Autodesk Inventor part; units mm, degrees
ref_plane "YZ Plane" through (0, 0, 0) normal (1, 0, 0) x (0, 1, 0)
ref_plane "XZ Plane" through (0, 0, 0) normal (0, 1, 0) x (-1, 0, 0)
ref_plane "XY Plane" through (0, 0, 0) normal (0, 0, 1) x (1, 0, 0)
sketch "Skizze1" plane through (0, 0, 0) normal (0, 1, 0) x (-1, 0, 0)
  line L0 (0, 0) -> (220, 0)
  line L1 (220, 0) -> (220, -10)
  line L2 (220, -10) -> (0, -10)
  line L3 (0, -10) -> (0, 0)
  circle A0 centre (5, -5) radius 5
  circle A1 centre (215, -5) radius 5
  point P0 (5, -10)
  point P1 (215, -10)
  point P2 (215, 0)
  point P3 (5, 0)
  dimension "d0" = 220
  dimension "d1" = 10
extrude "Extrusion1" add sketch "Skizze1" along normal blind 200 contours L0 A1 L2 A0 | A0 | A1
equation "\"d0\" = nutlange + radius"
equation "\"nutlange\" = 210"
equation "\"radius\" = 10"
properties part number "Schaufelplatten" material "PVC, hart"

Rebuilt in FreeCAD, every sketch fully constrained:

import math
import FreeCAD as App
import Part
import Sketcher

V = App.Vector
Q = App.Units.Quantity

doc = App.newDocument("Part")
body = doc.addObject("PartDesign::Body", "Body")

sketch1 = body.newObject("Sketcher::SketchObject", "Sketch")
sketch1.AttachmentSupport = (doc.getObject("XZ_Plane"), [""])
sketch1.MapMode = "FlatFace"
sketch1.addGeometry([
    Part.LineSegment(V(-215, 0, 0), V(-5, 0, 0)),
    Part.ArcOfCircle(Part.Circle(V(-5, -5, 0), V(0, 0, 1), 5), math.radians(-90), math.radians(90)),
    Part.LineSegment(V(-5, -10, 0), V(-215, -10, 0)),
    Part.ArcOfCircle(Part.Circle(V(-215, -5, 0), V(0, 0, 1), 5), math.radians(90), math.radians(270)),
], False)
sketch1.addConstraint([
    Sketcher.Constraint("Tangent", 0, 2, 1, 2),
    Sketcher.Constraint("Tangent", 1, 1, 2, 1),
    Sketcher.Constraint("Tangent", 2, 2, 3, 2),
    Sketcher.Constraint("Tangent", 3, 1, 0, 1),
    Sketcher.Constraint("Horizontal", 0),
    Sketcher.Constraint("Horizontal", 2),
    Sketcher.Constraint("PointOnObject", 0, 2, -1),
    Sketcher.Constraint("Radius", 1, Q("5 mm")),
    Sketcher.Constraint("DistanceX", 0, 1, 0, 2, Q("210 mm")),
    Sketcher.Constraint("DistanceX", 1, 3, -1, 1, Q("5 mm")),
])
pad1 = body.newObject("PartDesign::Pad", "Pad")
pad1.Profile = sketch1
pad1.Length = 200
pad1.Reversed = True

doc.recompute()
